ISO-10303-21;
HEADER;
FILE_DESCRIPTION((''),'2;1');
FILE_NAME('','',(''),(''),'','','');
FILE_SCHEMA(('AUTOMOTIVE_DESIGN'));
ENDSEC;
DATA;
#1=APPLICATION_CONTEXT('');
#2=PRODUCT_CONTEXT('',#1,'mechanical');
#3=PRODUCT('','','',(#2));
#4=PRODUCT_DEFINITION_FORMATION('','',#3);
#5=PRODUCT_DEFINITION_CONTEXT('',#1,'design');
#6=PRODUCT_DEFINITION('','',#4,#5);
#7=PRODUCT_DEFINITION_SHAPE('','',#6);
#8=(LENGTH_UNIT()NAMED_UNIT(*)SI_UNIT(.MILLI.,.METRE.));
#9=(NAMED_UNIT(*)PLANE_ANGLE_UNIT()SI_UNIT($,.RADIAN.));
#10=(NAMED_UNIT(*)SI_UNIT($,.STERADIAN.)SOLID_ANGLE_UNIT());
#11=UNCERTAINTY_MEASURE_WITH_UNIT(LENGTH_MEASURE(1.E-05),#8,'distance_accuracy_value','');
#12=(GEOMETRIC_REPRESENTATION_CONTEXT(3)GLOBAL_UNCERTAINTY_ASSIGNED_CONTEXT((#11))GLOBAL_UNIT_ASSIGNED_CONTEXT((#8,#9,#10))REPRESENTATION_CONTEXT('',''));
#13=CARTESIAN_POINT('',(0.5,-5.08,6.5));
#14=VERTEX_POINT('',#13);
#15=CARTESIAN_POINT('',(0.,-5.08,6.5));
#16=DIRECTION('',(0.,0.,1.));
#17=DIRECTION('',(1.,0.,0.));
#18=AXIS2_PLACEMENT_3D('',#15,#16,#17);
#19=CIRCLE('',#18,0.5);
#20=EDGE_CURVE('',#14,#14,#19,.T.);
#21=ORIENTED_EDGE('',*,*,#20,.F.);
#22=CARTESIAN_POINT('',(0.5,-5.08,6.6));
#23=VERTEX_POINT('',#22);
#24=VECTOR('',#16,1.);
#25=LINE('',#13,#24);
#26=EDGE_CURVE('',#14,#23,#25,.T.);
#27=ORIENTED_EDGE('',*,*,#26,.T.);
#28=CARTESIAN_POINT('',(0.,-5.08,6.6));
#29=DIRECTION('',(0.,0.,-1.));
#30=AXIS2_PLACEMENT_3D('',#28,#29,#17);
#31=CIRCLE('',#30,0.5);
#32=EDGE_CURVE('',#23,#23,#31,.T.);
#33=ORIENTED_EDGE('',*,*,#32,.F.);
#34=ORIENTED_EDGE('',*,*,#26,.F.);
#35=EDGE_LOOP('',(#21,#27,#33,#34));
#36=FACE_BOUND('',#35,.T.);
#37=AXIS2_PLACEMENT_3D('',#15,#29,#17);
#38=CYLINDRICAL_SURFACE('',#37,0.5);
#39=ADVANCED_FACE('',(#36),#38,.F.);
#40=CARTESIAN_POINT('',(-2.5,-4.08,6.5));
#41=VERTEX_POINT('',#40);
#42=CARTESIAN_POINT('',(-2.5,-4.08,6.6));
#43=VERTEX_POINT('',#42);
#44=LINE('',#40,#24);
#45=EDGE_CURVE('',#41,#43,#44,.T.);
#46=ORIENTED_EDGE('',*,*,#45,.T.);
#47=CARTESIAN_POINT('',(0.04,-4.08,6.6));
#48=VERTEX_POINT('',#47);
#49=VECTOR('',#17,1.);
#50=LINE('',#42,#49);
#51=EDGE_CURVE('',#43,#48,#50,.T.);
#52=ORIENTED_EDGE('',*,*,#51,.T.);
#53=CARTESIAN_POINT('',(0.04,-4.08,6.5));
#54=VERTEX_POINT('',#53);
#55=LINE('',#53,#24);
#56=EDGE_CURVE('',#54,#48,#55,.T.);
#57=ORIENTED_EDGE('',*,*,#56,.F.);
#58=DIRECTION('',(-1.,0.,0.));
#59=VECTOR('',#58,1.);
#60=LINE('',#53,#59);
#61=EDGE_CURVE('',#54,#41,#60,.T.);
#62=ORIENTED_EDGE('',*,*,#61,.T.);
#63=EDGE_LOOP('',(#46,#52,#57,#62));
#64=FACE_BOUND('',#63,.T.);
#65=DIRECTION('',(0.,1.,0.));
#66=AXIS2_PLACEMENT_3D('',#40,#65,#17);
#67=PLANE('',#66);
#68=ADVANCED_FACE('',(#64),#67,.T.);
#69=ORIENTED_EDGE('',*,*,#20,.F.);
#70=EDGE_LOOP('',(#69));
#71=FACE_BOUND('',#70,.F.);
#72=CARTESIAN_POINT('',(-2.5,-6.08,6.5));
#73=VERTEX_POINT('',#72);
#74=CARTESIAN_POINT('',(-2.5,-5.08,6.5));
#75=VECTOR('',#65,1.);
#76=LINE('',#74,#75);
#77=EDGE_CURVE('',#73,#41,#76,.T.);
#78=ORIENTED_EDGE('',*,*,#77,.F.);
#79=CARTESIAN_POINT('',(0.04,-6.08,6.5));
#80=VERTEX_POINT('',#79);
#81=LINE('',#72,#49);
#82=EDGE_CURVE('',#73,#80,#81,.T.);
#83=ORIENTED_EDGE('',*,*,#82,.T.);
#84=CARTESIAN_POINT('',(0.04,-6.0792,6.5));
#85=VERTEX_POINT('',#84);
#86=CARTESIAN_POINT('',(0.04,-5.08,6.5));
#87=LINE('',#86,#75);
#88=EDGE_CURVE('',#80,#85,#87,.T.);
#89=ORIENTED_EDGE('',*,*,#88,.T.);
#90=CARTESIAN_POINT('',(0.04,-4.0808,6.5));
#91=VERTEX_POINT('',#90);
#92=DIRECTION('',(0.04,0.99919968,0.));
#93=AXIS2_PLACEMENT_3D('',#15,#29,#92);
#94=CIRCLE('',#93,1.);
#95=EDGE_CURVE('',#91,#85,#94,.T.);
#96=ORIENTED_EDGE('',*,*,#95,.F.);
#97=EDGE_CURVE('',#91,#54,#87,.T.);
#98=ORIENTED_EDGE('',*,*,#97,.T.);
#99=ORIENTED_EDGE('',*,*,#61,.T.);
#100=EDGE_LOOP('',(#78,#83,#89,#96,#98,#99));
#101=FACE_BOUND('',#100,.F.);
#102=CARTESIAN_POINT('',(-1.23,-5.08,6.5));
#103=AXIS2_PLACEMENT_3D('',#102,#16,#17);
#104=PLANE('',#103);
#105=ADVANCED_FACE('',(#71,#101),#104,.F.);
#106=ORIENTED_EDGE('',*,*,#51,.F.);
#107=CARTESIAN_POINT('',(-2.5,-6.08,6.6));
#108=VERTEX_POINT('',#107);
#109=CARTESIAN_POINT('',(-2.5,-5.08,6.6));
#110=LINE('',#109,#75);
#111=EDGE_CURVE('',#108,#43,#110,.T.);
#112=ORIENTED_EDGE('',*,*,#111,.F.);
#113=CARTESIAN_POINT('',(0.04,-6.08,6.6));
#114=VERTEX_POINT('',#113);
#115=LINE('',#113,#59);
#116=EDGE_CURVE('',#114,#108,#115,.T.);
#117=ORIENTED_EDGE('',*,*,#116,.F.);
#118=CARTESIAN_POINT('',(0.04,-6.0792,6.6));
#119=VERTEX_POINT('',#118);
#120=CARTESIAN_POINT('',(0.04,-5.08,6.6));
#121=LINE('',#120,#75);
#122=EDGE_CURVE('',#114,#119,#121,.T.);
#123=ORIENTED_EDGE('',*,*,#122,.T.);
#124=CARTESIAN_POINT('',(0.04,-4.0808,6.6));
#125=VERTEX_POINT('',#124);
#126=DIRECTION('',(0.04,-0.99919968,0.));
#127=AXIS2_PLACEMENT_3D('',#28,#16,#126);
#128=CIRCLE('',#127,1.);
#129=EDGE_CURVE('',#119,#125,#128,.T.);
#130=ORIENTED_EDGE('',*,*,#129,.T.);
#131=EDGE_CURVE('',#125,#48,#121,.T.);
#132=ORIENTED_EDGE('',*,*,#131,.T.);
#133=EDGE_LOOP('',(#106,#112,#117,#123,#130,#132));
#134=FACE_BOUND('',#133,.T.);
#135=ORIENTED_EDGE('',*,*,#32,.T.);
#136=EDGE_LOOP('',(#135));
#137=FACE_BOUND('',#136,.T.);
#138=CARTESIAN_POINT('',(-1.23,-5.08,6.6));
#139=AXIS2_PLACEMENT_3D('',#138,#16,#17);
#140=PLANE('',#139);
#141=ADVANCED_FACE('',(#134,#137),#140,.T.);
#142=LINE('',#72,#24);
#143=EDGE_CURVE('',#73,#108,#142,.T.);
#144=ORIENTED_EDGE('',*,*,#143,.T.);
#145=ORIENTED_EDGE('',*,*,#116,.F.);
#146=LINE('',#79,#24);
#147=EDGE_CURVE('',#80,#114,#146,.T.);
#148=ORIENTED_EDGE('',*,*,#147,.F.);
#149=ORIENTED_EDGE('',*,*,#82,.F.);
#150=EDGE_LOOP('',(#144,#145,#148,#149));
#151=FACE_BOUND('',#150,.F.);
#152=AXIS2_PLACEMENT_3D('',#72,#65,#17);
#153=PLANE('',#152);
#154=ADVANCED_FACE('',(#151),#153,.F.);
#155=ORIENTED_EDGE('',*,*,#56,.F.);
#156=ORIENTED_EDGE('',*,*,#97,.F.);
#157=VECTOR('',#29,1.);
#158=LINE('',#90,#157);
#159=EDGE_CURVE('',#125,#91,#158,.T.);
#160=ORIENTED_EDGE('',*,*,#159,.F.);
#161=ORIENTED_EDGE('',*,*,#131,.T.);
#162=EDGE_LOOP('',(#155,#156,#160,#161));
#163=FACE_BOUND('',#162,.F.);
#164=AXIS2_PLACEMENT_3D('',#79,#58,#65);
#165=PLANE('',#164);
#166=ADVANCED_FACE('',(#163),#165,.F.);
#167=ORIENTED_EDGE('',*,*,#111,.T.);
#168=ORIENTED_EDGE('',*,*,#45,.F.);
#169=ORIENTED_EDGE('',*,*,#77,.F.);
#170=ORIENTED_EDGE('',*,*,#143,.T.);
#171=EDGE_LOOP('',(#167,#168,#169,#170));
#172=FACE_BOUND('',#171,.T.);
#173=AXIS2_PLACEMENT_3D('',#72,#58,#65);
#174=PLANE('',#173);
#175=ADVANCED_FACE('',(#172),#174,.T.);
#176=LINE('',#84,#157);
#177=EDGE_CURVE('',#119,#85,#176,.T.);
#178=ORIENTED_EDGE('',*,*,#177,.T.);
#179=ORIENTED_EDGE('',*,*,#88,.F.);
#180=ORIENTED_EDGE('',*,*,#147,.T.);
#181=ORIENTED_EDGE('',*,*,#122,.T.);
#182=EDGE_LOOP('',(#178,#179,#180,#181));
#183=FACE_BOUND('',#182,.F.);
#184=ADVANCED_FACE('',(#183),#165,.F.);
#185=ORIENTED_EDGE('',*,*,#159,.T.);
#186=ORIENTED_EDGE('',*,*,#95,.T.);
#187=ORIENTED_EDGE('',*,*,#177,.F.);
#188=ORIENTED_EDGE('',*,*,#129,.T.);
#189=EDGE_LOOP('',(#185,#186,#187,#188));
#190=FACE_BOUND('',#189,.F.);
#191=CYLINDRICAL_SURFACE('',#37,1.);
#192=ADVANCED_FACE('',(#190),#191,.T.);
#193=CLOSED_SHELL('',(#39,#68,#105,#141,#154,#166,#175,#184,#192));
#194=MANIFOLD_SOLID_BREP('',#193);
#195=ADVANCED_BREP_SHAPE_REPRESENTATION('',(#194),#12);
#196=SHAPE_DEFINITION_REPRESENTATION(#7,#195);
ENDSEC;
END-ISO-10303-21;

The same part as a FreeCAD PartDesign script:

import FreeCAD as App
import Part
import Sketcher

doc = App.newDocument("Part")
body = doc.addObject("PartDesign::Body", "Body")

# Sketch on XY plane
sketch1 = body.newObject("Sketcher::SketchObject", "Sketch")
sketch1.AttachmentSupport = (doc.getObject("XY_Plane"), [""])
sketch1.MapMode = "FlatFace"
sketch1.AttachmentOffset = App.Placement(App.Vector(0, 0, 1), App.Rotation())
sketch1.addGeometry(Part.Circle(App.Vector(0, 0, 0), App.Vector(0, 0, 1), 0.5), False)
sketch1.addConstraint(Sketcher.Constraint("Coincident", 0, 3, -1, 1))
sketch1.addConstraint(Sketcher.Constraint("Diameter", 0, 1.0))
pad1 = body.newObject("PartDesign::Pad", "Pad")
pad1.Profile = sketch1
pad1.Length = 0.1
body2 = doc.addObject("PartDesign::Body", "Body001")

# Sketch on XY plane
sketch2 = body2.newObject("Sketcher::SketchObject", "Sketch001")
sketch2.AttachmentSupport = (doc.getObject("XY_Plane001"), [""])
sketch2.MapMode = "FlatFace"
sketch2.AttachmentOffset = App.Placement(App.Vector(0, 0, 1), App.Rotation())
sketch2.addGeometry(Part.LineSegment(App.Vector(-2.5, 1, 0), App.Vector(-2.5, -1, 0)), False)
sketch2.addGeometry(Part.LineSegment(App.Vector(-2.5, -1, 0), App.Vector(0, -1, 0)), False)
sketch2.addGeometry(Part.LineSegment(App.Vector(0, -1, 0), App.Vector(0, 1, 0)), False)
sketch2.addGeometry(Part.LineSegment(App.Vector(0, 1, 0), App.Vector(-2.5, 1, 0)), False)
sketch2.addConstraint(Sketcher.Constraint("Coincident", 0, 2, 1, 1))
sketch2.addConstraint(Sketcher.Constraint("Coincident", 1, 2, 2, 1))
sketch2.addConstraint(Sketcher.Constraint("Coincident", 2, 2, 3, 1))
sketch2.addConstraint(Sketcher.Constraint("Coincident", 3, 2, 0, 1))
sketch2.addConstraint(Sketcher.Constraint("Vertical", 0))
sketch2.addConstraint(Sketcher.Constraint("Horizontal", 1))
sketch2.addConstraint(Sketcher.Constraint("Vertical", 2))
sketch2.addConstraint(Sketcher.Constraint("Horizontal", 3))
sketch2.addConstraint(Sketcher.Constraint("DistanceY", 0, 2, 0, 1, 2.0))
sketch2.addConstraint(Sketcher.Constraint("DistanceY", 0, 2, -1, 1, 1.0))
sketch2.addConstraint(Sketcher.Constraint("DistanceX", 1, 1, 1, 2, 2.54))
sketch2.addConstraint(Sketcher.Constraint("DistanceX", 0, 2, -1, 1, 2.5))
pad2 = body2.newObject("PartDesign::Pad", "Pad001")
pad2.Profile = sketch2
pad2.Length = 0.1
doc.recompute()

boolean = body2.newObject("PartDesign::Boolean", "Boolean")
boolean.Type = "Cut"
boolean.addObjects([body])
body3 = doc.addObject("PartDesign::Body", "Body002")

# Sketch on XY plane
sketch3 = body3.newObject("Sketcher::SketchObject", "Sketch002")
sketch3.AttachmentSupport = (doc.getObject("XY_Plane002"), [""])
sketch3.MapMode = "FlatFace"
sketch3.AttachmentOffset = App.Placement(App.Vector(0, 0, 1), App.Rotation())
sketch3.addGeometry(Part.Circle(App.Vector(0, 0, 0), App.Vector(0, 0, 1), 0.5), False)
sketch3.addConstraint(Sketcher.Constraint("Coincident", 0, 3, -1, 1))
sketch3.addConstraint(Sketcher.Constraint("Diameter", 0, 1.0))
pad3 = body3.newObject("PartDesign::Pad", "Pad002")
pad3.Profile = sketch3
pad3.Length = 0.1
body4 = doc.addObject("PartDesign::Body", "Body003")

# Sketch on XY plane
sketch4 = body4.newObject("Sketcher::SketchObject", "Sketch003")
sketch4.AttachmentSupport = (doc.getObject("XY_Plane003"), [""])
sketch4.MapMode = "FlatFace"
sketch4.AttachmentOffset = App.Placement(App.Vector(0, 0, 1), App.Rotation())
sketch4.addGeometry(Part.Circle(App.Vector(0, 0, 0), App.Vector(0, 0, 1), 1), False)
sketch4.addConstraint(Sketcher.Constraint("Coincident", 0, 3, -1, 1))
sketch4.addConstraint(Sketcher.Constraint("Diameter", 0, 2.0))
pad4 = body4.newObject("PartDesign::Pad", "Pad003")
pad4.Profile = sketch4
pad4.Length = 0.1
doc.recompute()

boolean2 = body4.newObject("PartDesign::Boolean", "Boolean001")
boolean2.Type = "Cut"
boolean2.addObjects([body3])
doc.recompute()

boolean3 = body4.newObject("PartDesign::Boolean", "Boolean002")
boolean3.Type = "Fuse"
boolean3.addObjects([body2])
body5 = doc.addObject("PartDesign::Body", "Body004")
doc.recompute()

body4.Placement = App.Placement(App.Vector(0, -5.08, 5.5), App.Rotation(App.Vector(0, 0, 1), 0))
boolean4 = body5.newObject("PartDesign::Boolean", "Boolean003")
boolean4.Type = "Fuse"
boolean4.addObjects([body4])

doc.recompute()
